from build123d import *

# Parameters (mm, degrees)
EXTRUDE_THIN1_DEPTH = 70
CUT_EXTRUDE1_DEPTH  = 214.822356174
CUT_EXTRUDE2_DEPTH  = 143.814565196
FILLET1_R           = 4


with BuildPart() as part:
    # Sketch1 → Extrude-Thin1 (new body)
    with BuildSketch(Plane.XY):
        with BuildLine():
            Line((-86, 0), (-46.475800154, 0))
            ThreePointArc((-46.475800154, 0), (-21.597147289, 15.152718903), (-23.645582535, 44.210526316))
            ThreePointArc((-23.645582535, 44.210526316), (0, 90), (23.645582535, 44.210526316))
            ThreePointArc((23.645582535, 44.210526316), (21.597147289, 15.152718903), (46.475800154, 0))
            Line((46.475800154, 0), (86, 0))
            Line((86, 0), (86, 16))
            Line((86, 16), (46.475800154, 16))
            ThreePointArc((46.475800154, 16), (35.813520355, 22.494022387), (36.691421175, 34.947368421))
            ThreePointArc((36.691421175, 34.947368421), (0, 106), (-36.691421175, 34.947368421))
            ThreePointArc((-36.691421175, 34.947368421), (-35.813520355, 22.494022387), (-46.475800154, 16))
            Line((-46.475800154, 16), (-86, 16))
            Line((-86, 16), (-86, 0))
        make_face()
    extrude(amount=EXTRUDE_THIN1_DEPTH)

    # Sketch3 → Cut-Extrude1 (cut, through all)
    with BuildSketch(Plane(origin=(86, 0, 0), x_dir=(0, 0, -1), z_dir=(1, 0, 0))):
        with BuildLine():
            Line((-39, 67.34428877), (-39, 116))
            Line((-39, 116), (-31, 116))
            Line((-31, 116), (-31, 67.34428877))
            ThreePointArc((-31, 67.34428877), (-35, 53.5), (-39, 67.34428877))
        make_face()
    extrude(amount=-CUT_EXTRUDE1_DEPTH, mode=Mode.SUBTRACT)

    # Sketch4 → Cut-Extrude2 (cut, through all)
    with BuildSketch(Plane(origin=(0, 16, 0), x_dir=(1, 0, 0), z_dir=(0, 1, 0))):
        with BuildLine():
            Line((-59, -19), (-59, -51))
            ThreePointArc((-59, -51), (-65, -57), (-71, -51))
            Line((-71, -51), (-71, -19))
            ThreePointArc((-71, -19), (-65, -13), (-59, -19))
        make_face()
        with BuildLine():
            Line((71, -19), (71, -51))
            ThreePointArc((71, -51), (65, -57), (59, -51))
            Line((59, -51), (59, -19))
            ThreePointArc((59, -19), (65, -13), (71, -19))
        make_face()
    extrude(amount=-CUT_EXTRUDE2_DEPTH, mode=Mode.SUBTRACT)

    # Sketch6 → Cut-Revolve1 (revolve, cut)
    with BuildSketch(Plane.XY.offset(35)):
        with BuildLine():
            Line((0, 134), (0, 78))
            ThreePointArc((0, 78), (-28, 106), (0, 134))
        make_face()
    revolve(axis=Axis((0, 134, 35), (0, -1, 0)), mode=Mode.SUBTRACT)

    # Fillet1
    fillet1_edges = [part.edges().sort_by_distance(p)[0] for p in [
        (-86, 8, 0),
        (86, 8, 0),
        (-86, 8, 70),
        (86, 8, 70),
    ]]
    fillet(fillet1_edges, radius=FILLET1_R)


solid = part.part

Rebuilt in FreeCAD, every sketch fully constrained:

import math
import FreeCAD as App
import Part
import Sketcher
from FreeCAD import Vector
Q = App.Units.Quantity


def edges_at(feature, points):
    """Names of the edges that pass closest to the given points."""
    edges = feature.Shape.Edges
    near = lambda p: min(range(len(edges)), key=lambda i: edges[i].distToShape(Part.Vertex(*p))[0])
    return sorted({f"Edge{near(p) + 1}" for p in points})

doc = App.newDocument("Part")
body = doc.addObject("PartDesign::Body", "Body")

# Sketch on XY plane
sketch1 = doc.addObject("Sketcher::SketchObject", "Sketch")
body.addObject(sketch1)
sketch1.AttachmentSupport = (doc.XY_Plane, [""])
sketch1.MapMode = "FlatFace"
sketch1.addGeometry([
    Part.LineSegment(Vector(-86, 0, 0), Vector(-46.4758, 0, 0)),  # 0
    Part.ArcOfCircle(Part.Circle(Vector(-46.4758, 28, 0), Vector(0, 0, 1), 28), math.radians(-90), math.radians(35.37654)),  # 1
    Part.ArcOfCircle(Part.Circle(Vector(0, 61, 0), Vector(0, 0, 1), 29), math.radians(-35.37654), math.radians(215.37654)),  # 2
    Part.ArcOfCircle(Part.Circle(Vector(46.4758, 28, 0), Vector(0, 0, 1), 28), math.radians(144.62346), math.radians(270)),  # 3
    Part.LineSegment(Vector(46.4758, 0, 0), Vector(86, 0, 0)),  # 4
    Part.LineSegment(Vector(86, 0, 0), Vector(86, 16, 0)),  # 5
    Part.LineSegment(Vector(86, 16, 0), Vector(46.4758, 16, 0)),  # 6
    Part.ArcOfCircle(Part.Circle(Vector(46.4758, 28, 0), Vector(0, 0, 1), 12), math.radians(144.62346), math.radians(270)),  # 7
    Part.ArcOfCircle(Part.Circle(Vector(0, 61, 0), Vector(0, 0, 1), 45), math.radians(-35.37654), math.radians(215.37654)),  # 8
    Part.ArcOfCircle(Part.Circle(Vector(-46.4758, 28, 0), Vector(0, 0, 1), 12), math.radians(-90), math.radians(35.37654)),  # 9
    Part.LineSegment(Vector(-46.4758, 16, 0), Vector(-86, 16, 0)),  # 10
    Part.LineSegment(Vector(-86, 16, 0), Vector(-86, 0, 0)),  # 11
], False)
sketch1.addConstraint([
    Sketcher.Constraint("Tangent", 0, 2, 1, 1),
    Sketcher.Constraint("Tangent", 1, 2, 2, 2),
    Sketcher.Constraint("Tangent", 2, 1, 3, 1),
    Sketcher.Constraint("Tangent", 3, 2, 4, 1),
    Sketcher.Constraint("Coincident", 4, 2, 5, 1),
    Sketcher.Constraint("Coincident", 5, 2, 6, 1),
    Sketcher.Constraint("Tangent", 6, 2, 7, 2),
    Sketcher.Constraint("Tangent", 7, 1, 8, 1),
    Sketcher.Constraint("Tangent", 8, 2, 9, 2),
    Sketcher.Constraint("Tangent", 9, 1, 10, 1),
    Sketcher.Constraint("Coincident", 10, 2, 11, 1),
    Sketcher.Constraint("Coincident", 11, 2, 0, 1),
    Sketcher.Constraint("Horizontal", 0),
    Sketcher.Constraint("Horizontal", 4),
    Sketcher.Constraint("Vertical", 5),
    Sketcher.Constraint("Horizontal", 6),
    Sketcher.Constraint("Horizontal", 10),
    Sketcher.Constraint("Vertical", 11),
    Sketcher.Constraint("Coincident", 7, 3, 3, 3),
    Sketcher.Constraint("Coincident", 8, 3, 2, 3),
    Sketcher.Constraint("Coincident", 9, 3, 1, 3),
    Sketcher.Constraint("Equal", 1, 3),
    Sketcher.Constraint("Symmetric", 0, 2, 3, 2, -1, 1),
    Sketcher.Constraint("Symmetric", 5, 2, 10, 2, -2),
    Sketcher.Constraint("Radius", 1, Q("28 mm")),
    Sketcher.Constraint("Radius", 2, Q("29 mm")),
    Sketcher.Constraint("Radius", 7, Q("12 mm")),
    Sketcher.Constraint("DistanceY", -1, 1, 2, 3, Q("61 mm")),
    Sketcher.Constraint("DistanceX", -1, 1, 4, 2, Q("86 mm")),
])
pad1 = doc.addObject("PartDesign::Pad", "Pad")
body.addObject(pad1)
pad1.Profile = sketch1
pad1.Length = 70

# Sketch on YZ plane
sketch2 = doc.addObject("Sketcher::SketchObject", "Sketch001")
body.addObject(sketch2)
sketch2.AttachmentSupport = (doc.YZ_Plane, [""])
sketch2.MapMode = "FlatFace"
sketch2.AttachmentOffset = App.Placement(Vector(0, 0, 86), App.Rotation())
sketch2.addGeometry([
    Part.LineSegment(Vector(116, 39, 0), Vector(67.344289, 39, 0)),
    Part.ArcOfCircle(Part.Circle(Vector(61, 35, 0), Vector(0, 0, 1), 7.5), math.radians(32.230953), math.radians(327.769047)),
    Part.LineSegment(Vector(67.344289, 31, 0), Vector(116, 31, 0)),
    Part.LineSegment(Vector(116, 31, 0), Vector(116, 39, 0)),
], False)
sketch2.addConstraint([
    Sketcher.Constraint("Coincident", 0, 2, 1, 1),
    Sketcher.Constraint("Coincident", 1, 2, 2, 1),
    Sketcher.Constraint("Coincident", 2, 2, 3, 1),
    Sketcher.Constraint("Coincident", 3, 2, 0, 1),
    Sketcher.Constraint("Horizontal", 0),
    Sketcher.Constraint("Horizontal", 2),
    Sketcher.Constraint("Vertical", 3),
    Sketcher.Constraint("Vertical", 0, 2, 1, 2),
    Sketcher.Constraint("Radius", 1, Q("7.5 mm")),
    Sketcher.Constraint("DistanceY", 3, 1, 3, 2, Q("8 mm")),
    Sketcher.Constraint("DistanceX", -1, 1, 1, 3, Q("61 mm")),
    Sketcher.Constraint("DistanceY", -1, 1, 1, 3, Q("35 mm")),
    Sketcher.Constraint("DistanceX", -1, 1, 2, 2, Q("116 mm")),
])
pocket1 = doc.addObject("PartDesign::Pocket", "Pocket")
body.addObject(pocket1)
pocket1.Profile = sketch2
pocket1.Type = "ThroughAll"

# Sketch on XZ plane
sketch3 = doc.addObject("Sketcher::SketchObject", "Sketch002")
body.addObject(sketch3)
sketch3.AttachmentSupport = (doc.XZ_Plane, [""])
sketch3.MapMode = "FlatFace"
sketch3.AttachmentOffset = App.Placement(Vector(0, 0, -16), App.Rotation())
sketch3.addGeometry([
    Part.LineSegment(Vector(-59, 51, 0), Vector(-59, 19, 0)),  # 0
    Part.ArcOfCircle(Part.Circle(Vector(-65, 19, 0), Vector(0, 0, 1), 6), math.radians(180), math.radians(360)),  # 1
    Part.LineSegment(Vector(-71, 19, 0), Vector(-71, 51, 0)),  # 2
    Part.ArcOfCircle(Part.Circle(Vector(-65, 51, 0), Vector(0, 0, 1), 6), math.radians(0), math.radians(180)),  # 3
    Part.LineSegment(Vector(71, 51, 0), Vector(71, 19, 0)),  # 4
    Part.ArcOfCircle(Part.Circle(Vector(65, 19, 0), Vector(0, 0, 1), 6), math.radians(180), math.radians(360)),  # 5
    Part.LineSegment(Vector(59, 19, 0), Vector(59, 51, 0)),  # 6
    Part.ArcOfCircle(Part.Circle(Vector(65, 51, 0), Vector(0, 0, 1), 6), math.radians(0), math.radians(180)),  # 7
], False)
sketch3.addConstraint([
    Sketcher.Constraint("Tangent", 0, 2, 1, 2),
    Sketcher.Constraint("Tangent", 1, 1, 2, 1),
    Sketcher.Constraint("Tangent", 2, 2, 3, 2),
    Sketcher.Constraint("Tangent", 3, 1, 0, 1),
    Sketcher.Constraint("Tangent", 4, 2, 5, 2),
    Sketcher.Constraint("Tangent", 5, 1, 6, 1),
    Sketcher.Constraint("Tangent", 6, 2, 7, 2),
    Sketcher.Constraint("Tangent", 7, 1, 4, 1),
    Sketcher.Constraint("Vertical", 0),
    Sketcher.Constraint("Vertical", 2),
    Sketcher.Constraint("Vertical", 4),
    Sketcher.Constraint("Vertical", 6),
    Sketcher.Constraint("Equal", 3, 5),
    Sketcher.Constraint("Symmetric", 1, 3, 5, 3, -2),
    Sketcher.Constraint("Horizontal", 3, 3, 7, 3),
    Sketcher.Constraint("Radius", 1, Q("6 mm")),
    Sketcher.Constraint("DistanceY", 0, 2, 0, 1, Q("32 mm")),
    Sketcher.Constraint("DistanceX", 1, 3, -1, 1, Q("65 mm")),
    Sketcher.Constraint("DistanceY", -1, 1, 1, 3, Q("19 mm")),
])
pocket2 = doc.addObject("PartDesign::Pocket", "Pocket001")
body.addObject(pocket2)
pocket2.Profile = sketch3
pocket2.Type = "ThroughAll"
pocket2.Reversed = True

# Sketch on XY plane
sketch4 = doc.addObject("Sketcher::SketchObject", "Sketch003")
body.addObject(sketch4)
sketch4.AttachmentSupport = (doc.XY_Plane, [""])
sketch4.MapMode = "FlatFace"
sketch4.AttachmentOffset = App.Placement(Vector(0, 0, 35), App.Rotation())
sketch4.addGeometry([
    Part.LineSegment(Vector(0, 78, 0), Vector(0, 134, 0)),
    Part.ArcOfCircle(Part.Circle(Vector(0, 106, 0), Vector(0, 0, 1), 28), math.radians(90), math.radians(270)),
], False)
sketch4.addConstraint([
    Sketcher.Constraint("Coincident", 0, 1, 1, 2),
    Sketcher.Constraint("Coincident", 1, 1, 0, 2),
    Sketcher.Constraint("Vertical", 0),
    Sketcher.Constraint("PointOnObject", 1, 3, -2),
    Sketcher.Constraint("PointOnObject", 0, 1, -2),
    Sketcher.Constraint("Radius", 1, Q("28 mm")),
    Sketcher.Constraint("DistanceY", -1, 1, 1, 3, Q("106 mm")),
])
groove = doc.addObject("PartDesign::Groove", "Groove")
body.addObject(groove)
groove.Profile = sketch4
groove.ReferenceAxis = (sketch4, ["V_Axis"])
groove.Angle = 360
doc.recompute()

fillet = doc.addObject("PartDesign::Fillet", "Fillet")
body.addObject(fillet)
fillet.Base = (groove, edges_at(groove, [
    (-86, 8, 0),
    (86, 8, 0),
    (-86, 8, 70),
    (86, 8, 70),
]))
fillet.Radius = 4

doc.recompute()
